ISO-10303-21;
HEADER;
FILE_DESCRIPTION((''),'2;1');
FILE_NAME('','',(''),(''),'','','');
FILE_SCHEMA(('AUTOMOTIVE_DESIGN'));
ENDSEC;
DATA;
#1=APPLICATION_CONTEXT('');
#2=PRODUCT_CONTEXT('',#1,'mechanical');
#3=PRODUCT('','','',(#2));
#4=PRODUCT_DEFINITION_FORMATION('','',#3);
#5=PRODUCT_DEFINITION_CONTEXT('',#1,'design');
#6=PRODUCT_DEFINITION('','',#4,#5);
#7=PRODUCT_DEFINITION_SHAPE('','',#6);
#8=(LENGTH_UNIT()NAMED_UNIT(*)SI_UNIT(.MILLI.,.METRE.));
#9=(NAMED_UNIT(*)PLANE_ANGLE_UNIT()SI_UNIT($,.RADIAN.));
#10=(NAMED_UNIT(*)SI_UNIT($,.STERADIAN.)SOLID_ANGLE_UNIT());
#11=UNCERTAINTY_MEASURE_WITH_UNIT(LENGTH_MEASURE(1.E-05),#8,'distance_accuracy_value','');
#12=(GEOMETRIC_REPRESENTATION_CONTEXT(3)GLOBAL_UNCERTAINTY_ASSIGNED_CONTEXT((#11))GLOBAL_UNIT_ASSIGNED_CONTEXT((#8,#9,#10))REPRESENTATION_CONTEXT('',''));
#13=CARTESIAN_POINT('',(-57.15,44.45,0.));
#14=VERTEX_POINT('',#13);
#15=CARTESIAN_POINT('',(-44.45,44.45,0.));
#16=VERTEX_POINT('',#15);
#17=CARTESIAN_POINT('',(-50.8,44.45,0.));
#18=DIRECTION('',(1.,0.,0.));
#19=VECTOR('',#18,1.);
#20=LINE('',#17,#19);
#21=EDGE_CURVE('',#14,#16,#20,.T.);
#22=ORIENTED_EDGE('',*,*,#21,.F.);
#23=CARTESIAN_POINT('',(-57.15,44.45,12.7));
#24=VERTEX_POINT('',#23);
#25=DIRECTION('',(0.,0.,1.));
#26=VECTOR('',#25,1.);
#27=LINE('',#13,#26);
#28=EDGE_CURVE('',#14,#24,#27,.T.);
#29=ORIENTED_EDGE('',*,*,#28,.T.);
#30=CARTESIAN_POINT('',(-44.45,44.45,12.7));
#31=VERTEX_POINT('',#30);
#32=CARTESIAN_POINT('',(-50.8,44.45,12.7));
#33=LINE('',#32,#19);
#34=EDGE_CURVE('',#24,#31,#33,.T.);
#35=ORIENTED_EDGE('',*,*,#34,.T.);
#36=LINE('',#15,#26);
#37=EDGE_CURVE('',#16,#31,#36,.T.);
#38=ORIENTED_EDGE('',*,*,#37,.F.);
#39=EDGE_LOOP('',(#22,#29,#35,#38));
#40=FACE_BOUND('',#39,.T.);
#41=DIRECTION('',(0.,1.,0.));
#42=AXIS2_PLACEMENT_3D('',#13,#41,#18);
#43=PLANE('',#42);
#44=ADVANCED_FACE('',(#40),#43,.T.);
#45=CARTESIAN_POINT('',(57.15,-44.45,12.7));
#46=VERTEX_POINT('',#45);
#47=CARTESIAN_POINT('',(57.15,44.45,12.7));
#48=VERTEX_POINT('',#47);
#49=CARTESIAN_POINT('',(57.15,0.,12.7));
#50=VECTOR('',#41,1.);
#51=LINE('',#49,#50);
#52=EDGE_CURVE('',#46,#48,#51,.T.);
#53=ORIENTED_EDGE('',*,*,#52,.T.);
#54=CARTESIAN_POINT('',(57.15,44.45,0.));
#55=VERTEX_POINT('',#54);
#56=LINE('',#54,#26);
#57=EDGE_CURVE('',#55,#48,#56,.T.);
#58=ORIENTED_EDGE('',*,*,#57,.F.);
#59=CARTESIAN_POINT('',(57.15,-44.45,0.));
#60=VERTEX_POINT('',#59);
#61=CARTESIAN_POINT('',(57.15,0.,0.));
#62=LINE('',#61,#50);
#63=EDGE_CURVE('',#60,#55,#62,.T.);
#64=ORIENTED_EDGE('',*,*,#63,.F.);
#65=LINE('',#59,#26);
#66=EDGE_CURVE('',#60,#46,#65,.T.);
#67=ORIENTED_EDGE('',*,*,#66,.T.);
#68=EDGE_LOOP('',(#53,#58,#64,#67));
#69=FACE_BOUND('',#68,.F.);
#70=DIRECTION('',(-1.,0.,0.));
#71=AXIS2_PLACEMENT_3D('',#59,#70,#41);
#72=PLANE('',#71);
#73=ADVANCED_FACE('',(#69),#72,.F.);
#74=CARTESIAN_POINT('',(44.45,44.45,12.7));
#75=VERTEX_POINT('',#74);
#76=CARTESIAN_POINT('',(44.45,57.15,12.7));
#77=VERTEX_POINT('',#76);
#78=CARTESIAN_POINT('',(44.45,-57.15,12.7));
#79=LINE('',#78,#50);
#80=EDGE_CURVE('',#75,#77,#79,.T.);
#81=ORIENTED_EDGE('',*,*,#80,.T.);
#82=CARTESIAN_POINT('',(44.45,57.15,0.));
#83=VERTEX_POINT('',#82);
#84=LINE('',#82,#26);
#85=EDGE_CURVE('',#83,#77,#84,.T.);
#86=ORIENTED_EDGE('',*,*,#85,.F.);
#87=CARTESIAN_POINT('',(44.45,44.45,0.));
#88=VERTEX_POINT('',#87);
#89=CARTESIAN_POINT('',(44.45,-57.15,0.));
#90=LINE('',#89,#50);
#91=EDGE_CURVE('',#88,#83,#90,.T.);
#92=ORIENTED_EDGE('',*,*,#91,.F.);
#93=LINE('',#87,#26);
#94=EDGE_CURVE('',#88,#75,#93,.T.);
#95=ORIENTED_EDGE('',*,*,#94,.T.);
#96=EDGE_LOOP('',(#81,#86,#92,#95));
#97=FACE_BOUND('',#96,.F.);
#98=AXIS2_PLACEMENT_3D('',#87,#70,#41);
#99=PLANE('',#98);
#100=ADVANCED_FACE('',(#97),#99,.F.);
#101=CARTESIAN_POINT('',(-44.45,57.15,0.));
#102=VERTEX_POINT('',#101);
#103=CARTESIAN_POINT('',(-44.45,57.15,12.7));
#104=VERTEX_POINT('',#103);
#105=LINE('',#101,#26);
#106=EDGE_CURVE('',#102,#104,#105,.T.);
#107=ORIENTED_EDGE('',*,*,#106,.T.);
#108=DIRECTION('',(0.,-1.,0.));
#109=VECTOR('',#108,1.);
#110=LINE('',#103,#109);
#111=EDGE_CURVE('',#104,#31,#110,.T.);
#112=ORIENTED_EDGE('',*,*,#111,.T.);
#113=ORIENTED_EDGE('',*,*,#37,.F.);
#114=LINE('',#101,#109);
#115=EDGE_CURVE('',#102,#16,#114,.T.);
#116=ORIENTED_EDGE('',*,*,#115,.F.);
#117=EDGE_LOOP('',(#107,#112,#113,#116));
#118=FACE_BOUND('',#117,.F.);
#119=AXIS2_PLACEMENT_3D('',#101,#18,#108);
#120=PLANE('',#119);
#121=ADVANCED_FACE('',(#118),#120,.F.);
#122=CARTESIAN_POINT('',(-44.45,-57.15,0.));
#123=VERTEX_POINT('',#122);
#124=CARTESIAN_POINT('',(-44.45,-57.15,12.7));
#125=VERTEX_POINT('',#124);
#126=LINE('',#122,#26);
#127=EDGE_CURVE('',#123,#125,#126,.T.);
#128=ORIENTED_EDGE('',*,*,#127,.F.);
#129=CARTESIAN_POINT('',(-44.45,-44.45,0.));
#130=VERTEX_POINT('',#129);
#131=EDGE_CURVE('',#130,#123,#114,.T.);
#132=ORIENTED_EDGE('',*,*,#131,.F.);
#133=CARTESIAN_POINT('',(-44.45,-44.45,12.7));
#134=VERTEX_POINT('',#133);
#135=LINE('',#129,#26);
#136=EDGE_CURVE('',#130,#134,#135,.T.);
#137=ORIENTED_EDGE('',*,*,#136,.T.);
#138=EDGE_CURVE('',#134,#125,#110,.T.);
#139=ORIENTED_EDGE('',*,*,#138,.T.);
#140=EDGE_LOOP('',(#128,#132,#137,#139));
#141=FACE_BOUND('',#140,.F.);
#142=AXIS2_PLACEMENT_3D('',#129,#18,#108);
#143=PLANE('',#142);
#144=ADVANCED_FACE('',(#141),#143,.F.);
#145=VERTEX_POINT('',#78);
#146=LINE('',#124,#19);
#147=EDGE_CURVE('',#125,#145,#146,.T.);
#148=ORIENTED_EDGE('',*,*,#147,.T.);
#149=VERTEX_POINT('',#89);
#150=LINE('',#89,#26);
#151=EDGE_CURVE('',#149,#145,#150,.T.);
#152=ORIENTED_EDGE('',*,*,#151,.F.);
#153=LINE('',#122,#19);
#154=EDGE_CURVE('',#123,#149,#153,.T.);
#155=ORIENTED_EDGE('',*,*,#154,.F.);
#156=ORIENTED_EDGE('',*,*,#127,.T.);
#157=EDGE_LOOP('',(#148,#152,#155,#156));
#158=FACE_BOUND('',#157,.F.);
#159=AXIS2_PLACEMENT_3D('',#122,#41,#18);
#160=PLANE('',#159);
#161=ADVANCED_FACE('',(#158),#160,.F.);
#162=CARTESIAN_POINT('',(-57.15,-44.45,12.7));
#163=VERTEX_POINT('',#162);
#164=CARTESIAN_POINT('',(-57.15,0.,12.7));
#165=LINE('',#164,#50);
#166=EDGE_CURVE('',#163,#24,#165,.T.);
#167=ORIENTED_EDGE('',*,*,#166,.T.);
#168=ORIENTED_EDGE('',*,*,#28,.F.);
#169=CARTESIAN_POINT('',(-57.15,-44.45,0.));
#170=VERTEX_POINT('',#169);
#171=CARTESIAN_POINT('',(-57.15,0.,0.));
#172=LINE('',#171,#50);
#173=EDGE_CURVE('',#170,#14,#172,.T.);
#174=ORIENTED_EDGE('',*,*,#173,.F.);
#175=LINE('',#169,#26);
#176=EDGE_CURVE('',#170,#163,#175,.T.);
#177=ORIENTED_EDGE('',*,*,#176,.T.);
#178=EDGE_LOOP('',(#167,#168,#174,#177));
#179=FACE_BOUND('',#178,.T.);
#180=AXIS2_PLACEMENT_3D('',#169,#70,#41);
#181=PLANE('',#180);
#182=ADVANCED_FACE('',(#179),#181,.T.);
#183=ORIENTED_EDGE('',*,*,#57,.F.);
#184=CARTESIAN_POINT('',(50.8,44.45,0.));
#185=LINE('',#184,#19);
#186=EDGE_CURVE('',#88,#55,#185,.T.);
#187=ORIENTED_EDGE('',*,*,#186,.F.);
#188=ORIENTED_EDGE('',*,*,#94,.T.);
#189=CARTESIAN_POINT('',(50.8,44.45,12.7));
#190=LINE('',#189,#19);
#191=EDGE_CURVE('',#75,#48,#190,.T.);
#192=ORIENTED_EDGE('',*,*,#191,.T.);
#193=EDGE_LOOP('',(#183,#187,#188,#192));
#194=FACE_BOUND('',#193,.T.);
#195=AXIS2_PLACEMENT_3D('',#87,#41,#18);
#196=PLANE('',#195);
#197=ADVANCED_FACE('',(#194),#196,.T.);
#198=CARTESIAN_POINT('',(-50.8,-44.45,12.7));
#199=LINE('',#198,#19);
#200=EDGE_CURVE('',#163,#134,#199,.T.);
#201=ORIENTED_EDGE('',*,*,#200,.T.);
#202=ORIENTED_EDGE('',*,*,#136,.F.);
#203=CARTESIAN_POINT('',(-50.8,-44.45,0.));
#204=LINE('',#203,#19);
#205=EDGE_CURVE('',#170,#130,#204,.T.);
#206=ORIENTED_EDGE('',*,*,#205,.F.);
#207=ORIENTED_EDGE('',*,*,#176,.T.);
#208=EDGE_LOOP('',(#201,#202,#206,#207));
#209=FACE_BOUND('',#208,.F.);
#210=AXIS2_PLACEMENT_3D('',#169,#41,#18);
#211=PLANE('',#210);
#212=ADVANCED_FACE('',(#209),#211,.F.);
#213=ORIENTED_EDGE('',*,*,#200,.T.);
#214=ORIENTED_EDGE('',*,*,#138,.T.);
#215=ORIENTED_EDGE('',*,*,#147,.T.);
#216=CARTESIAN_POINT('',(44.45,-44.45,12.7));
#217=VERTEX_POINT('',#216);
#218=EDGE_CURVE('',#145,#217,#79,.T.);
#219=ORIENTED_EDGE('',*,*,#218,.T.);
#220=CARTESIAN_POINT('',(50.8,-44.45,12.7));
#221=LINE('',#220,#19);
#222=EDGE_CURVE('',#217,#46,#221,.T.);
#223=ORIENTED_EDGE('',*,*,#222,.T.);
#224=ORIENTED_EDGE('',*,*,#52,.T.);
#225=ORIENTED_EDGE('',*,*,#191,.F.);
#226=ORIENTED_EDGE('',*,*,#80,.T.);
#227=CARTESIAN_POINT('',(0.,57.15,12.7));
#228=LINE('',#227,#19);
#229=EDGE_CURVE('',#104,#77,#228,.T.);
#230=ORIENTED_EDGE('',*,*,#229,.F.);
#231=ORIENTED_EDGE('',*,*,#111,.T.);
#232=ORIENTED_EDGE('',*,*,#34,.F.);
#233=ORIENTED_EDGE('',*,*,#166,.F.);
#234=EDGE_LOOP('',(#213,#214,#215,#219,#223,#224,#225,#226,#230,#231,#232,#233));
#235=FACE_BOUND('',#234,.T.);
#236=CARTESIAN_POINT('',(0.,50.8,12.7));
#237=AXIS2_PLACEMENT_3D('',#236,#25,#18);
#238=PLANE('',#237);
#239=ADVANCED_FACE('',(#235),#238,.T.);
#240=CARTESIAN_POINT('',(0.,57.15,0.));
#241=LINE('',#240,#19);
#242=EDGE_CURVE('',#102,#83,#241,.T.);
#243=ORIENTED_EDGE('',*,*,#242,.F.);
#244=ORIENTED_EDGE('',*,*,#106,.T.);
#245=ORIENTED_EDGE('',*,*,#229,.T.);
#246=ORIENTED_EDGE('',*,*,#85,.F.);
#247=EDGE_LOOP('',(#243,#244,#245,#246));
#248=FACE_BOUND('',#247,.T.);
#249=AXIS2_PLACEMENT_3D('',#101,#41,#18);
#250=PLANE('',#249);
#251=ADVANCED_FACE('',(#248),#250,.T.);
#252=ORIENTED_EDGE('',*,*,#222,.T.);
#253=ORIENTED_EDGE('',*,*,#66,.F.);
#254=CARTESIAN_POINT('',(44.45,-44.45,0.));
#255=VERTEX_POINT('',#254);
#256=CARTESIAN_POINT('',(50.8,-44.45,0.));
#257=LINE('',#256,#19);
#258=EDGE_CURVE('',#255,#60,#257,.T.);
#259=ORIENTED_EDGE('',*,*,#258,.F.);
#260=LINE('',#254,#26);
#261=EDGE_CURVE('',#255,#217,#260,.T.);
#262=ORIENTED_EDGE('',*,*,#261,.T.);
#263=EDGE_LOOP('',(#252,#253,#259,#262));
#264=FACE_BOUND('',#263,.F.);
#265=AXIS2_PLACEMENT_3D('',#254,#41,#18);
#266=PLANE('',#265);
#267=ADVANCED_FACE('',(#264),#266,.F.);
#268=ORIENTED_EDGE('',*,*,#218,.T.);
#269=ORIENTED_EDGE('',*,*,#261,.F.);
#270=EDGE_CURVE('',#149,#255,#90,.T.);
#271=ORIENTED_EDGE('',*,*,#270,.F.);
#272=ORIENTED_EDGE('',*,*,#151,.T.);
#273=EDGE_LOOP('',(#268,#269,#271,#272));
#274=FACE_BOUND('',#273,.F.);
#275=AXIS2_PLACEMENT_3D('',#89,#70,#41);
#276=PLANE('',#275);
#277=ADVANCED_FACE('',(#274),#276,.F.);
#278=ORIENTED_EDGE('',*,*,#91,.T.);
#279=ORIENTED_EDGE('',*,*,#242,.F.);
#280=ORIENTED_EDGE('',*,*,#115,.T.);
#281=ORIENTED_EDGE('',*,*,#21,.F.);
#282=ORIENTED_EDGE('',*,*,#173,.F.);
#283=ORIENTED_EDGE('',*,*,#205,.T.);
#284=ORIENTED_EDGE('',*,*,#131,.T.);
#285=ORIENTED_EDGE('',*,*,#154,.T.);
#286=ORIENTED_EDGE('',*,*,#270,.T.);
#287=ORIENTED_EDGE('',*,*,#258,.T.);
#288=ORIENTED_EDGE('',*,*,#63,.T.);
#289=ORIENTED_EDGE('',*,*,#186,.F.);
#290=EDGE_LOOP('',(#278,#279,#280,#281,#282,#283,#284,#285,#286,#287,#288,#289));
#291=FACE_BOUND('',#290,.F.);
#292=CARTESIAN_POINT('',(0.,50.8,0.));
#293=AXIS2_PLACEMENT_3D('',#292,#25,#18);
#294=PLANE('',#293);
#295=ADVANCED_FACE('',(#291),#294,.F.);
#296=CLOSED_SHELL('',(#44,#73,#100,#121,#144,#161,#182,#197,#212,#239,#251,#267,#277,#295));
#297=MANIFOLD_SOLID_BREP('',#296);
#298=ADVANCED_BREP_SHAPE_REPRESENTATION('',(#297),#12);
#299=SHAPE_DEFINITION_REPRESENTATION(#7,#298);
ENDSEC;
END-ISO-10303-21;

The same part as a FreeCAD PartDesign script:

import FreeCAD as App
import Part
import Sketcher
from FreeCAD import Vector
Q = App.Units.Quantity

doc = App.newDocument("Part")
body = doc.addObject("PartDesign::Body", "Body")

# Sketch on XY plane
sketch1 = body.newObject("Sketcher::SketchObject", "Sketch")
sketch1.AttachmentSupport = (doc.getObject("XY_Plane"), [""])
sketch1.MapMode = "FlatFace"
sketch1.addGeometry(Part.LineSegment(Vector(-44, 57, 0), Vector(-44, 44, 0)), False)
sketch1.addGeometry(Part.LineSegment(Vector(-44, 44, 0), Vector(-57, 44, 0)), False)
sketch1.addGeometry(Part.LineSegment(Vector(-57, 44, 0), Vector(-57, -44, 0)), False)
sketch1.addGeometry(Part.LineSegment(Vector(-57, -44, 0), Vector(-44, -44, 0)), False)
sketch1.addGeometry(Part.LineSegment(Vector(-44, -44, 0), Vector(-44, -57, 0)), False)
sketch1.addGeometry(Part.LineSegment(Vector(-44, -57, 0), Vector(44, -57, 0)), False)
sketch1.addGeometry(Part.LineSegment(Vector(44, -57, 0), Vector(44, -44, 0)), False)
sketch1.addGeometry(Part.LineSegment(Vector(44, -44, 0), Vector(57, -44, 0)), False)
sketch1.addGeometry(Part.LineSegment(Vector(57, -44, 0), Vector(57, 44, 0)), False)
sketch1.addGeometry(Part.LineSegment(Vector(57, 44, 0), Vector(44, 44, 0)), False)
sketch1.addGeometry(Part.LineSegment(Vector(44, 44, 0), Vector(44, 57, 0)), False)
sketch1.addGeometry(Part.LineSegment(Vector(44, 57, 0), Vector(-44, 57, 0)), False)
sketch1.addConstraint(Sketcher.Constraint("Coincident", 0, 2, 1, 1))
sketch1.addConstraint(Sketcher.Constraint("Coincident", 1, 2, 2, 1))
sketch1.addConstraint(Sketcher.Constraint("Coincident", 2, 2, 3, 1))
sketch1.addConstraint(Sketcher.Constraint("Coincident", 3, 2, 4, 1))
sketch1.addConstraint(Sketcher.Constraint("Coincident", 4, 2, 5, 1))
sketch1.addConstraint(Sketcher.Constraint("Coincident", 5, 2, 6, 1))
sketch1.addConstraint(Sketcher.Constraint("Coincident", 6, 2, 7, 1))
sketch1.addConstraint(Sketcher.Constraint("Coincident", 7, 2, 8, 1))
sketch1.addConstraint(Sketcher.Constraint("Coincident", 8, 2, 9, 1))
sketch1.addConstraint(Sketcher.Constraint("Coincident", 9, 2, 10, 1))
sketch1.addConstraint(Sketcher.Constraint("Coincident", 10, 2, 11, 1))
sketch1.addConstraint(Sketcher.Constraint("Coincident", 11, 2, 0, 1))
sketch1.addConstraint(Sketcher.Constraint("Vertical", 0))
sketch1.addConstraint(Sketcher.Constraint("Horizontal", 1))
sketch1.addConstraint(Sketcher.Constraint("Vertical", 2))
sketch1.addConstraint(Sketcher.Constraint("Horizontal", 3))
sketch1.addConstraint(Sketcher.Constraint("Vertical", 4))
sketch1.addConstraint(Sketcher.Constraint("Horizontal", 5))
sketch1.addConstraint(Sketcher.Constraint("Vertical", 6))
sketch1.addConstraint(Sketcher.Constraint("Horizontal", 7))
sketch1.addConstraint(Sketcher.Constraint("Vertical", 8))
sketch1.addConstraint(Sketcher.Constraint("Horizontal", 9))
sketch1.addConstraint(Sketcher.Constraint("Vertical", 10))
sketch1.addConstraint(Sketcher.Constraint("Horizontal", 11))
sketch1.addConstraint(Sketcher.Constraint("Symmetric", 0, 2, 6, 2, -1, 1))
sketch1.addConstraint(Sketcher.Constraint("Symmetric", 2, 2, 8, 2, -1, 1))
sketch1.addConstraint(Sketcher.Constraint("Symmetric", 4, 2, 10, 2, -1, 1))
sketch1.addConstraint(Sketcher.Constraint("Symmetric", 3, 2, 6, 2, -2))
sketch1.addConstraint(Sketcher.Constraint("Equal", 9, 0))
sketch1.addConstraint(Sketcher.Constraint("Equal", 11, 2))
sketch1.addConstraint(Sketcher.Constraint("DistanceX", 1, 2, 1, 1, Q("0.5 in")))
sketch1.addConstraint(Sketcher.Constraint("DistanceX", 5, 1, 5, 2, Q("3.5 in")))
pad1 = body.newObject("PartDesign::Pad", "Pad")
pad1.Profile = sketch1
pad1.Length = Q("0.5 in")

doc.recompute()
